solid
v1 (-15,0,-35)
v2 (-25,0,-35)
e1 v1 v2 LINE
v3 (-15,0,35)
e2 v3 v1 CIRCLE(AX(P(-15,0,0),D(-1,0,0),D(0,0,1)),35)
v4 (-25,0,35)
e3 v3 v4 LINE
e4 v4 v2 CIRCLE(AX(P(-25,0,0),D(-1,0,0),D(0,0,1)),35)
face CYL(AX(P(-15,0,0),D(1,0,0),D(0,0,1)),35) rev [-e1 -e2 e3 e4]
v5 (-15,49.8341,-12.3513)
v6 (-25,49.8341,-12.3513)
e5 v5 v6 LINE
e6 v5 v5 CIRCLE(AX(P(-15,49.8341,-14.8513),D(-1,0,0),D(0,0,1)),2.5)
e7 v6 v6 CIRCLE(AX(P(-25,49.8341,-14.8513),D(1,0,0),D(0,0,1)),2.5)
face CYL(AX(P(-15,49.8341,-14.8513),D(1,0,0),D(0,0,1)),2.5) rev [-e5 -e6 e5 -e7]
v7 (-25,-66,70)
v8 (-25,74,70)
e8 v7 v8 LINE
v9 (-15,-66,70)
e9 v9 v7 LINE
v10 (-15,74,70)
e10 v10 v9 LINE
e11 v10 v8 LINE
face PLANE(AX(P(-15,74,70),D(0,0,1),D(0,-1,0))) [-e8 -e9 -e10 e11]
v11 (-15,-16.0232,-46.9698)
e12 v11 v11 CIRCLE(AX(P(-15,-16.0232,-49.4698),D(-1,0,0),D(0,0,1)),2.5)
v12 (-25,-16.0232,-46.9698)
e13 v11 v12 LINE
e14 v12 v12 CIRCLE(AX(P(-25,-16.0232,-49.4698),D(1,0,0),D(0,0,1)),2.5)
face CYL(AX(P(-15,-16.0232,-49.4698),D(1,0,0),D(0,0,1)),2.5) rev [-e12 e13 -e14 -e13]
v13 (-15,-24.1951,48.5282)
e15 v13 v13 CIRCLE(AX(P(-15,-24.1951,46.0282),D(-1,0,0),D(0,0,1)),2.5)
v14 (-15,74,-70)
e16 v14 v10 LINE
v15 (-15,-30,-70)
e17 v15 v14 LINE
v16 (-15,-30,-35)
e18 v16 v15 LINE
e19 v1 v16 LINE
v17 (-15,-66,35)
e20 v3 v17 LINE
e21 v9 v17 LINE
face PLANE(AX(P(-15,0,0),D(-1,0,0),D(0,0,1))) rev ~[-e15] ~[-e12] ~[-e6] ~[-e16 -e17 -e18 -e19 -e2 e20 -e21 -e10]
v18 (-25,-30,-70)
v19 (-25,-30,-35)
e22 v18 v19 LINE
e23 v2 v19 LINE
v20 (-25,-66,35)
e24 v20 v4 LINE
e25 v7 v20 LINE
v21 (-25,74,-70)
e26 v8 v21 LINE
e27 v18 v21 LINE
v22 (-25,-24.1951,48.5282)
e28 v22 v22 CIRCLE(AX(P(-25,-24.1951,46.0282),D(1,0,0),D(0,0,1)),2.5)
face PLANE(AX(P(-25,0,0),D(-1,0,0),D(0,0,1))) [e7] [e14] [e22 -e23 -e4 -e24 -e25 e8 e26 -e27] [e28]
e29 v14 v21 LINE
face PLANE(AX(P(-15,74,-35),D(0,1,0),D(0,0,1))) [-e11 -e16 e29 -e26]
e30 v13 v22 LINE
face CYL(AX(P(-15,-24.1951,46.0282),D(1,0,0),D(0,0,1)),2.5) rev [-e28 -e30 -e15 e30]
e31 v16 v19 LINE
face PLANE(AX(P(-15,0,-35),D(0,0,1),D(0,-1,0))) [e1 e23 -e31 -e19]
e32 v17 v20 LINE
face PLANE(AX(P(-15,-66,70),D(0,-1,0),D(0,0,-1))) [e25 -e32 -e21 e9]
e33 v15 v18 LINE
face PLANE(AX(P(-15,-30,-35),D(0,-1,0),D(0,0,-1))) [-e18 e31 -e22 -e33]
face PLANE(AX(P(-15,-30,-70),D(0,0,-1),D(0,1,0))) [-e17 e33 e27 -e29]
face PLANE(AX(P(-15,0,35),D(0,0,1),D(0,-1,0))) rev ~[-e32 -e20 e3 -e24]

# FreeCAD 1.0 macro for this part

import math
import FreeCAD as App
import Part
import Sketcher
Q = App.Units.Quantity

doc = App.newDocument("Part")
params = doc.addObject("Spreadsheet::Sheet", "Params")
for row, (alias, value) in enumerate([
    ("sketch1_radius", "35 mm"),
    ("sketch1_width", "66 mm"),
    ("sketch1_width2", "140 mm"),
    ("sketch1_width3", "30 mm"),
    ("sketch1_diameter", "5 mm"),
    ("pad1_length", "10 mm"),
], start=1):
    params.set(f"A{row}", alias)
    params.set(f"B{row}", "=" + value)
    params.setAlias(f"B{row}", alias)

body = doc.addObject("PartDesign::Body", "Body")

sketch1 = body.newObject("Sketcher::SketchObject", "Sketch")
sketch1.AttachmentSupport = (doc.getObject("YZ_Plane"), [""])
sketch1.MapMode = "FlatFace"
sketch1.AttachmentOffset = App.Placement(App.Vector(0, 0, -15), App.Rotation())
sketch1.addGeometry([
    Part.ArcOfCircle(Part.Circle(App.Vector(0, 0, 0), App.Vector(0, 0, 1), 35), math.radians(-90), math.radians(90)),
    Part.LineSegment(App.Vector(0, 35, 0), App.Vector(-66, 35, 0)),
    Part.LineSegment(App.Vector(-66, 35, 0), App.Vector(-66, 70, 0)),
    Part.LineSegment(App.Vector(-66, 70, 0), App.Vector(74, 70, 0)),
    Part.LineSegment(App.Vector(74, 70, 0), App.Vector(74, -70, 0)),
    Part.LineSegment(App.Vector(74, -70, 0), App.Vector(-30, -70, 0)),
    Part.LineSegment(App.Vector(-30, -70, 0), App.Vector(-30, -35, 0)),
    Part.LineSegment(App.Vector(-30, -35, 0), App.Vector(0, -35, 0)),
    Part.Circle(App.Vector(49.8341, -14.8513, 0), App.Vector(0, 0, 1), 2.5),
    Part.Circle(App.Vector(-16.0232, -49.4698, 0), App.Vector(0, 0, 1), 2.5),
    Part.Circle(App.Vector(-24.1951, 46.0282, 0), App.Vector(0, 0, 1), 2.5),
], False)
sketch1.addConstraint([
    Sketcher.Constraint("Tangent", 0, 2, 1, 1),
    Sketcher.Constraint("Coincident", 1, 2, 2, 1),
    Sketcher.Constraint("Coincident", 2, 2, 3, 1),
    Sketcher.Constraint("Coincident", 3, 2, 4, 1),
    Sketcher.Constraint("Coincident", 4, 2, 5, 1),
    Sketcher.Constraint("Coincident", 5, 2, 6, 1),
    Sketcher.Constraint("Coincident", 6, 2, 7, 1),
    Sketcher.Constraint("Tangent", 7, 2, 0, 1),
    Sketcher.Constraint("Horizontal", 1),
    Sketcher.Constraint("Vertical", 2),
    Sketcher.Constraint("Horizontal", 3),
    Sketcher.Constraint("Vertical", 4),
    Sketcher.Constraint("Horizontal", 5),
    Sketcher.Constraint("Vertical", 6),
    Sketcher.Constraint("Horizontal", 7),
    Sketcher.Constraint("Coincident", 0, 3, -1, 1),
    Sketcher.Constraint("Equal", 8, 9),
    Sketcher.Constraint("Equal", 9, 10),
    Sketcher.Constraint("Equal", 3, 4),
    Sketcher.Constraint("Equal", 2, 6),
    Sketcher.Constraint("Radius", 0, Q("35 mm")),
    Sketcher.Constraint("DistanceX", 1, 2, 1, 1, Q("66 mm")),
    Sketcher.Constraint("DistanceX", 3, 1, 3, 2, Q("140 mm")),
    Sketcher.Constraint("DistanceX", 7, 1, 7, 2, Q("30 mm")),
    Sketcher.Constraint("Diameter", 8, Q("5 mm")),
    Sketcher.Constraint("DistanceX", -1, 1, 8, 3, Q("49.834 mm")),
    Sketcher.Constraint("DistanceX", 10, 3, -1, 1, Q("24.195 mm")),
    Sketcher.Constraint("DistanceX", 10, 3, 9, 3, Q("8.172 mm")),
    Sketcher.Constraint("DistanceY", 9, 3, 10, 3, Q("95.498 mm")),
    Sketcher.Constraint("DistanceY", 8, 3, -1, 1, Q("14.8513 mm")),
    Sketcher.Constraint("DistanceY", 9, 3, -1, 1, Q("49.4698 mm")),
])
sketch1.setExpression("Constraints[20]", "Params.sketch1_radius")
sketch1.setExpression("Constraints[21]", "Params.sketch1_width")
sketch1.setExpression("Constraints[22]", "Params.sketch1_width2")
sketch1.setExpression("Constraints[23]", "Params.sketch1_width3")
sketch1.setExpression("Constraints[24]", "Params.sketch1_diameter")
pad1 = body.newObject("PartDesign::Pad", "Pad")
pad1.Profile = sketch1
pad1.setExpression("Length", "Params.pad1_length")
pad1.Reversed = True

doc.recompute()
